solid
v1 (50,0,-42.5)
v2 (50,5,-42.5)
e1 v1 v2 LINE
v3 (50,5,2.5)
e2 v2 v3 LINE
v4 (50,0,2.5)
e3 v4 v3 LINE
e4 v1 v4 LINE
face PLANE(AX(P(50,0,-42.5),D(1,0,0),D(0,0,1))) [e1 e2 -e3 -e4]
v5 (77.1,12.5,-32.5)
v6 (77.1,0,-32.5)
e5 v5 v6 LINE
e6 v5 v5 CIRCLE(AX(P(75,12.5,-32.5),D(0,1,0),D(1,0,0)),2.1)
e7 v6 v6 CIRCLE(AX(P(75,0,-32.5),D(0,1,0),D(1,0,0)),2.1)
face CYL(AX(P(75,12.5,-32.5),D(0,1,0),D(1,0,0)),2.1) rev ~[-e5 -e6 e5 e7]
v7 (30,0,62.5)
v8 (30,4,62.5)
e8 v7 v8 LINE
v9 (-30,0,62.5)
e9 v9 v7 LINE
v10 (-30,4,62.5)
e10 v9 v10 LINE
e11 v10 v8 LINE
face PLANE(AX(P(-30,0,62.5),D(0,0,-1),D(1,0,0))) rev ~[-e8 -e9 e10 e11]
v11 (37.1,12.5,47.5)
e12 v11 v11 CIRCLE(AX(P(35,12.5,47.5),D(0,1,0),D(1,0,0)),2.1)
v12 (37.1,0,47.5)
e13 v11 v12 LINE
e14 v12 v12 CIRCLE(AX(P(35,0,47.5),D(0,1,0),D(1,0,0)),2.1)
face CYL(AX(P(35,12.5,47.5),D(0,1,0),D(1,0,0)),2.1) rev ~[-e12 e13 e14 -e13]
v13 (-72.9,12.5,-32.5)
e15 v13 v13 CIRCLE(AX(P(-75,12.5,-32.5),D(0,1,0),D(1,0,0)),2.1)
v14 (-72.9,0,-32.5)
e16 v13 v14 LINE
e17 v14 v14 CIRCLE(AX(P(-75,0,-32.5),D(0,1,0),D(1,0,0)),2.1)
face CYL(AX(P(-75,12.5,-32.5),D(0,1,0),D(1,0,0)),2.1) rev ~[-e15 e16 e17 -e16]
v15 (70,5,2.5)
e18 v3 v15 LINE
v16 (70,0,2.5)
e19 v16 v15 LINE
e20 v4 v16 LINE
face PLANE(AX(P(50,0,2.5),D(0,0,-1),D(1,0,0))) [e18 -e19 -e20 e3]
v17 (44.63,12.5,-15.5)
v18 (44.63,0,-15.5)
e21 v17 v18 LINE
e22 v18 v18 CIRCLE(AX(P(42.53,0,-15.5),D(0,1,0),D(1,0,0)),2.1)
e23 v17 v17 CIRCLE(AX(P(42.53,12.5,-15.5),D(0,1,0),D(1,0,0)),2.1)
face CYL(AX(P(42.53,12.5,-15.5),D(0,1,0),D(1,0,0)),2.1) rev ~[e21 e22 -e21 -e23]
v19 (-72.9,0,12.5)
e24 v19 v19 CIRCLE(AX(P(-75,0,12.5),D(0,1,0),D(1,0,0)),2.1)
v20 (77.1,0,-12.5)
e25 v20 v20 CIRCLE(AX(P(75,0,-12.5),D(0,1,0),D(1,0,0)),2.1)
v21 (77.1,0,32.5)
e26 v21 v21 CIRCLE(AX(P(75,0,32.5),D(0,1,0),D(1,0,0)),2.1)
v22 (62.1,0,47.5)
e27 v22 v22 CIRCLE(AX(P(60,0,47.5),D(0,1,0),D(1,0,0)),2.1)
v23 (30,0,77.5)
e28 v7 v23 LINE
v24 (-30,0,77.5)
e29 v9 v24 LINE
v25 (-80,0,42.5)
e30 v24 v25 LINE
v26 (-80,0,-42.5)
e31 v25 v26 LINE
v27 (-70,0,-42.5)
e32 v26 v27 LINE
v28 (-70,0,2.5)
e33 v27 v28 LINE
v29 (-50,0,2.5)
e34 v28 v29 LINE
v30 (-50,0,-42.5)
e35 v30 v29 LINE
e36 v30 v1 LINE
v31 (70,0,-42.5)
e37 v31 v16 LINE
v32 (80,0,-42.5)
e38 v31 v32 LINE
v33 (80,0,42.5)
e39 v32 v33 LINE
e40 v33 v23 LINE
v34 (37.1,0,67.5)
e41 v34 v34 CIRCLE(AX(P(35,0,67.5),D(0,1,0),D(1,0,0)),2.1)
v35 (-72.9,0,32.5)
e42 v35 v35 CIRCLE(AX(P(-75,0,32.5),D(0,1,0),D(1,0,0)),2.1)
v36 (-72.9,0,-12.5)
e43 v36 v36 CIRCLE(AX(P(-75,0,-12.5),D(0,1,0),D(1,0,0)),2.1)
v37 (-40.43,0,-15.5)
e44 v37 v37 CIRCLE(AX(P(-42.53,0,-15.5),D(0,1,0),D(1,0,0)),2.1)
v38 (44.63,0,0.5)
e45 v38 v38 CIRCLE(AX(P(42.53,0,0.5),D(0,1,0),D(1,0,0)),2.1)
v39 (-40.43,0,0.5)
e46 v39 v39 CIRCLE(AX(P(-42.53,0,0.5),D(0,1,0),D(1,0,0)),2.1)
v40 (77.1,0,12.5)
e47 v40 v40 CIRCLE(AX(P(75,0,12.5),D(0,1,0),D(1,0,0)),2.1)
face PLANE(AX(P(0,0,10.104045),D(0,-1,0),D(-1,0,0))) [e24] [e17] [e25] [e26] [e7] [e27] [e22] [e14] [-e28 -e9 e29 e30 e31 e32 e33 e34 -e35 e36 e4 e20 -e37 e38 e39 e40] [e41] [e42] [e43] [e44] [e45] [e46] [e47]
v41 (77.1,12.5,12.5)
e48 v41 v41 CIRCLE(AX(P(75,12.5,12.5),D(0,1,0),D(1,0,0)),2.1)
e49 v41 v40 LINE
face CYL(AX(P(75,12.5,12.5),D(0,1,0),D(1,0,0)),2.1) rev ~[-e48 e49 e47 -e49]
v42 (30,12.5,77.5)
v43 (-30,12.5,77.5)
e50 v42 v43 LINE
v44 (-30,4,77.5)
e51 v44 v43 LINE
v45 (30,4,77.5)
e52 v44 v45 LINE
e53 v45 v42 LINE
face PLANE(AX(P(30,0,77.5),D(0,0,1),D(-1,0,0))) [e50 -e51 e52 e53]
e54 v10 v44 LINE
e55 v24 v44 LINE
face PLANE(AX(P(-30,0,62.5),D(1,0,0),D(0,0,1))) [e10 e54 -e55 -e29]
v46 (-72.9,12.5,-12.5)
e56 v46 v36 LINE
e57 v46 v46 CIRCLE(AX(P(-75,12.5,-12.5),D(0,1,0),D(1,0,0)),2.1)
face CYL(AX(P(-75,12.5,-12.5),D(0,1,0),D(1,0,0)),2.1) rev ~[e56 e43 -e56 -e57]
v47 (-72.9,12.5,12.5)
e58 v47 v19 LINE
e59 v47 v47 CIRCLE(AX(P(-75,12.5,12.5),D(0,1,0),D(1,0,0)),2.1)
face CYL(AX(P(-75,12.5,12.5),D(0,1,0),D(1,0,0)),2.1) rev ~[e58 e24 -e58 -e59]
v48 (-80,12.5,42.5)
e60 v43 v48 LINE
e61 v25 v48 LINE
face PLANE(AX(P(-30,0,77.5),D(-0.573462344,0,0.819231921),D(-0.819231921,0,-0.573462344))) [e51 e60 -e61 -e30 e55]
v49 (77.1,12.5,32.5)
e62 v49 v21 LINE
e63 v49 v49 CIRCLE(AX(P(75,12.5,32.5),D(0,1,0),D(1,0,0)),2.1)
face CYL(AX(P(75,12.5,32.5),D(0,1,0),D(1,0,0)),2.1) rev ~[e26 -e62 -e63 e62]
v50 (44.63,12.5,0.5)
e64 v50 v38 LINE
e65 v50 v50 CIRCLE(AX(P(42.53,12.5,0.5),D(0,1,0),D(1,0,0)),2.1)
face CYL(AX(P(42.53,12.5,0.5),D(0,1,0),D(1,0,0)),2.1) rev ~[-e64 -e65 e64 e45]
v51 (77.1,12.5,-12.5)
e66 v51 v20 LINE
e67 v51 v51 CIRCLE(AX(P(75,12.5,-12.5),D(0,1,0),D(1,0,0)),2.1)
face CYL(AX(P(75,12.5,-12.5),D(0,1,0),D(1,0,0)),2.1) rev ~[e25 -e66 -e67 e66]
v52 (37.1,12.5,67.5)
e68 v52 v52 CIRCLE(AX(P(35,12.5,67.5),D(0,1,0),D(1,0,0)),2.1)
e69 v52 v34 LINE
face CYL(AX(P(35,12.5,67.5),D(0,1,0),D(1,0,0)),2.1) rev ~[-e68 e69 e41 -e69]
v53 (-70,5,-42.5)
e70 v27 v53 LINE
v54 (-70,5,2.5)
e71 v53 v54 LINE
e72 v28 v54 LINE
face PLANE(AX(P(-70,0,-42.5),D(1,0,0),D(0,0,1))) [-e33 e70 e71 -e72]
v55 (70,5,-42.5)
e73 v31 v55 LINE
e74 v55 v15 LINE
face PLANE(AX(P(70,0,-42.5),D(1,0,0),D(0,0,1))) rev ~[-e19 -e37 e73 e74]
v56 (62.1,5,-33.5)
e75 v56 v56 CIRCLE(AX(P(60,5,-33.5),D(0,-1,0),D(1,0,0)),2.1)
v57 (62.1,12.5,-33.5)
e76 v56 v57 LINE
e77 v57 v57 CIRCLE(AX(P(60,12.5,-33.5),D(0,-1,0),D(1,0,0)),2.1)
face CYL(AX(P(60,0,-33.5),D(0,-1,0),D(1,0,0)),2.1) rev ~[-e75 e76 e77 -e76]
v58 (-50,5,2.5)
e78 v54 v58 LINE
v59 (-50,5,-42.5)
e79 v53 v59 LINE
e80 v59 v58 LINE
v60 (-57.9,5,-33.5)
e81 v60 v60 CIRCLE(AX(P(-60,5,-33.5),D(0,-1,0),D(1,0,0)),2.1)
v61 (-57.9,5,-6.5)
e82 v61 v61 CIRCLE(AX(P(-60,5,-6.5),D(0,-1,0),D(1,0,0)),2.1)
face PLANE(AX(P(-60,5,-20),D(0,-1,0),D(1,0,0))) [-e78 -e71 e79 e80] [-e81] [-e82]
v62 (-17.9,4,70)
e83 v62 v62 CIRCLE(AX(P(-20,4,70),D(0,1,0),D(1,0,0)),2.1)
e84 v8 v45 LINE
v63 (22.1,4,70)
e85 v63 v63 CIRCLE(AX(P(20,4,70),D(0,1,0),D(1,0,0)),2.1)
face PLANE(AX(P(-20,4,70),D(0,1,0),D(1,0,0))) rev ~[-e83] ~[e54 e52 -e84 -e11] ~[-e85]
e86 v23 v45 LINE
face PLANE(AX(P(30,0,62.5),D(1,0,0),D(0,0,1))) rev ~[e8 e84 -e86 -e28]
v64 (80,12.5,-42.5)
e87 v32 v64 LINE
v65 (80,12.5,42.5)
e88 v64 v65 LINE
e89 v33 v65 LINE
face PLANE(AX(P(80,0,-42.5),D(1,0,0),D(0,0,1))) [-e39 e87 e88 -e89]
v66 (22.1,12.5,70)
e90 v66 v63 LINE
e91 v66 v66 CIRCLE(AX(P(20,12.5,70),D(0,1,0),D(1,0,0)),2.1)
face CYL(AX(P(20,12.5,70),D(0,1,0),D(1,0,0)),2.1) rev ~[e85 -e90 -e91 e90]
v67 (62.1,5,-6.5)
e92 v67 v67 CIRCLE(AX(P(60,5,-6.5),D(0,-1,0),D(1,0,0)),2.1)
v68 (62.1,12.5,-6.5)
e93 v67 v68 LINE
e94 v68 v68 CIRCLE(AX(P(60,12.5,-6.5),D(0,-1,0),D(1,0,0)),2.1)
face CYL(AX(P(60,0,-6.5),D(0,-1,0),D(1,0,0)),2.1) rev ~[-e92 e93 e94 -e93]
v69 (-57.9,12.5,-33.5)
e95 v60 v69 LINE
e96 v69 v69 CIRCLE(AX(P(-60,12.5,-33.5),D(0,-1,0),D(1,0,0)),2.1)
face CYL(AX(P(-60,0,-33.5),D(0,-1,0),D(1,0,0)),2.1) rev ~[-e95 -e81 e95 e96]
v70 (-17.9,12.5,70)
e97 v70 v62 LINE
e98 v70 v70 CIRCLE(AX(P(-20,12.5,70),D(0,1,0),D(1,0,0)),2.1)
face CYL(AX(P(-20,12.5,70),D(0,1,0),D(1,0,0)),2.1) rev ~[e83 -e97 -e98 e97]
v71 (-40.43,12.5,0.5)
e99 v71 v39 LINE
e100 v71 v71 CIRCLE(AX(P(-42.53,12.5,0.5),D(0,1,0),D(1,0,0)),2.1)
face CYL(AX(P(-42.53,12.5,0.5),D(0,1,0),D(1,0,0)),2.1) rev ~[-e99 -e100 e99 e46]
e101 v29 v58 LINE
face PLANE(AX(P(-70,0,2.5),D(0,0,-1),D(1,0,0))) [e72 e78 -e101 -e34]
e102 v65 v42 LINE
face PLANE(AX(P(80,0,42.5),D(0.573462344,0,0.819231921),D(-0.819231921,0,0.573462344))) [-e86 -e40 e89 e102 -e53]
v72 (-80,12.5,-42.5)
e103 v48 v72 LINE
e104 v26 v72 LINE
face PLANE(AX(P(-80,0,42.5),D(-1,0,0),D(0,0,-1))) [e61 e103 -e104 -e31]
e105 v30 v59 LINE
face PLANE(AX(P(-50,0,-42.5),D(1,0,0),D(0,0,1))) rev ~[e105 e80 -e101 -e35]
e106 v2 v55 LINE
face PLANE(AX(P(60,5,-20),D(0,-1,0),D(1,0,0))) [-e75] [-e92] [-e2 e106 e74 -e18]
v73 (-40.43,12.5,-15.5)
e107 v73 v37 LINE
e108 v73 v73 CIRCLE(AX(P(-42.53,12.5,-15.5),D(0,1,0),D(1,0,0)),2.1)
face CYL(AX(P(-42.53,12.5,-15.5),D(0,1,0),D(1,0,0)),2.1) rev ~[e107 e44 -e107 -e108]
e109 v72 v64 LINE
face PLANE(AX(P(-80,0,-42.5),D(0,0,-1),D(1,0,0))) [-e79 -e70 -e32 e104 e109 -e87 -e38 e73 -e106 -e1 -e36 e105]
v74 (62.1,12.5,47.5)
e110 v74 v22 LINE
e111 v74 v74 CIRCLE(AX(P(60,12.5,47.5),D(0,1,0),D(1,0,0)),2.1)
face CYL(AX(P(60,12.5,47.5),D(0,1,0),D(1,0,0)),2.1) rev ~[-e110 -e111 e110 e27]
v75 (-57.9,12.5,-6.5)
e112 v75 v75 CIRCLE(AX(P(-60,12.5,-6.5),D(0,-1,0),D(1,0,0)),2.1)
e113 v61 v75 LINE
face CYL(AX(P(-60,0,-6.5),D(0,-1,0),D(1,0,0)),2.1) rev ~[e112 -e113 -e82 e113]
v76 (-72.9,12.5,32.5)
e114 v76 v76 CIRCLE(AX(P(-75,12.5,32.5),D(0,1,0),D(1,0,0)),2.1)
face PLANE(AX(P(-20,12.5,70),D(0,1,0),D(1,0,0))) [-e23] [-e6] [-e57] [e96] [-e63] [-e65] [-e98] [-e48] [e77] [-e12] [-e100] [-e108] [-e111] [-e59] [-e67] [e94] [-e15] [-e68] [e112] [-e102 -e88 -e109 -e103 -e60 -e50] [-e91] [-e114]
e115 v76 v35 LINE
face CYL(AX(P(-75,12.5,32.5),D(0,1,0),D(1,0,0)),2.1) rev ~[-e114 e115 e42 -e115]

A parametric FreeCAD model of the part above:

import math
import FreeCAD as App
import Part
import Sketcher
from FreeCAD import Vector
Q = App.Units.Quantity


def edges_at(feature, points):
    """Names of the edges that pass closest to the given points."""
    edges = feature.Shape.Edges
    near = lambda p: min(range(len(edges)), key=lambda i: edges[i].distToShape(Part.Vertex(*p))[0])
    return sorted({f"Edge{near(p) + 1}" for p in points})

doc = App.newDocument("Part")
body = doc.addObject("PartDesign::Body", "Body")

sketch1 = body.newObject("Sketcher::SketchObject", "Sketch")
sketch1.AttachmentSupport = (doc.getObject("XZ_Plane"), [""])
sketch1.MapMode = "FlatFace"
sketch1.addGeometry([
    Part.LineSegment(Vector(-80, -42, 0), Vector(-80, 42, 0)),
    Part.LineSegment(Vector(-80, 42, 0), Vector(-30, 78, 0)),
    Part.LineSegment(Vector(-30, 78, 0), Vector(30, 78, 0)),
    Part.LineSegment(Vector(30, 78, 0), Vector(80, 42, 0)),
    Part.LineSegment(Vector(80, 42, 0), Vector(80, -42, 0)),
    Part.LineSegment(Vector(80, -42, 0), Vector(-80, -42, 0)),
], False)
sketch1.addConstraint([
    Sketcher.Constraint("Coincident", 0, 2, 1, 1),
    Sketcher.Constraint("Coincident", 1, 2, 2, 1),
    Sketcher.Constraint("Coincident", 2, 2, 3, 1),
    Sketcher.Constraint("Coincident", 3, 2, 4, 1),
    Sketcher.Constraint("Coincident", 4, 2, 5, 1),
    Sketcher.Constraint("Coincident", 5, 2, 0, 1),
    Sketcher.Constraint("Vertical", 0),
    Sketcher.Constraint("Horizontal", 2),
    Sketcher.Constraint("Vertical", 4),
    Sketcher.Constraint("Horizontal", 5),
    Sketcher.Constraint("Symmetric", 0, 2, 4, 2, -1, 1),
    Sketcher.Constraint("Horizontal", 0, 2, 3, 2),
    Sketcher.Constraint("Equal", 1, 3),
    Sketcher.Constraint("DistanceX", 2, 1, 2, 2, Q("60 mm")),
    Sketcher.Constraint("DistanceX", 5, 2, 5, 1, Q("160 mm")),
    Sketcher.Constraint("DistanceY", 0, 1, 0, 2, Q("85 mm")),
    Sketcher.Constraint("DistanceY", 0, 2, 1, 2, Q("35 mm")),
])
pad1 = body.newObject("PartDesign::Pad", "Pad")
pad1.Profile = sketch1
pad1.Length = 12.5
pad1.Reversed = True

sketch2 = body.newObject("Sketcher::SketchObject", "Sketch001")
sketch2.AttachmentSupport = (doc.getObject("XZ_Plane"), [""])
sketch2.MapMode = "FlatFace"
sketch2.AttachmentOffset = App.Placement(Vector(0, 0, -12.5), App.Rotation())
sketch2.addGeometry([
    Part.LineSegment(Vector(10.2, 47.5, 0), Vector(-10.2, 47.5, 0)),
    Part.LineSegment(Vector(-10.2, 47.5, 0), Vector(-10.2, 7, 0)),
    Part.LineSegment(Vector(-10.2, 7, 0), Vector(-3, 7, 0)),
    Part.LineSegment(Vector(-3, 7, 0), Vector(-3, 3.6, 0)),
    Part.ArcOfCircle(Part.Circle(Vector(-5, 3, 0), Vector(0, 0, 1), 2.1), math.radians(18), math.radians(342)),
    Part.LineSegment(Vector(-3, 2.4, 0), Vector(-3, -2.8, 0)),
    Part.LineSegment(Vector(-3, -2.8, 0), Vector(-15, -2.8, 0)),
    Part.LineSegment(Vector(-15, -2.8, 0), Vector(-15, 57.2, 0)),
    Part.LineSegment(Vector(-15, 57.2, 0), Vector(15, 57.2, 0)),
    Part.LineSegment(Vector(15, 57.2, 0), Vector(15, -2.8, 0)),
    Part.LineSegment(Vector(15, -2.8, 0), Vector(3, -2.8, 0)),
    Part.LineSegment(Vector(3, -2.8, 0), Vector(3, 2.4, 0)),
    Part.ArcOfCircle(Part.Circle(Vector(5, 3, 0), Vector(0, 0, 1), 2.1), math.radians(-162), math.radians(0)),
    Part.ArcOfCircle(Part.Circle(Vector(5, 3, 0), Vector(0, 0, 1), 2.1), math.radians(0), math.radians(162)),
    Part.LineSegment(Vector(3, 3.6, 0), Vector(3, 7, 0)),
    Part.LineSegment(Vector(3, 7, 0), Vector(10.2, 7, 0)),
    Part.LineSegment(Vector(10.2, 7, 0), Vector(10.2, 47.5, 0)),
    Part.Circle(Vector(-5, 51.5, 0), Vector(0, 0, 1), 2.1),
    Part.Circle(Vector(5, 51.5, 0), Vector(0, 0, 1), 2.1),
], False)
sketch2.addConstraint([
    Sketcher.Constraint("Coincident", 0, 2, 1, 1),
    Sketcher.Constraint("Coincident", 1, 2, 2, 1),
    Sketcher.Constraint("Coincident", 2, 2, 3, 1),
    Sketcher.Constraint("Coincident", 3, 2, 4, 1),
    Sketcher.Constraint("Coincident", 4, 2, 5, 1),
    Sketcher.Constraint("Coincident", 5, 2, 6, 1),
    Sketcher.Constraint("Coincident", 6, 2, 7, 1),
    Sketcher.Constraint("Coincident", 7, 2, 8, 1),
    Sketcher.Constraint("Coincident", 8, 2, 9, 1),
    Sketcher.Constraint("Coincident", 9, 2, 10, 1),
    Sketcher.Constraint("Coincident", 10, 2, 11, 1),
    Sketcher.Constraint("Coincident", 11, 2, 12, 1),
    Sketcher.Constraint("Tangent", 12, 2, 13, 1),
    Sketcher.Constraint("Coincident", 13, 2, 14, 1),
    Sketcher.Constraint("Coincident", 14, 2, 15, 1),
    Sketcher.Constraint("Coincident", 15, 2, 16, 1),
    Sketcher.Constraint("Coincident", 16, 2, 0, 1),
    Sketcher.Constraint("Horizontal", 0),
    Sketcher.Constraint("Vertical", 1),
    Sketcher.Constraint("Horizontal", 2),
    Sketcher.Constraint("Vertical", 3),
    Sketcher.Constraint("Vertical", 5),
    Sketcher.Constraint("Horizontal", 6),
    Sketcher.Constraint("Vertical", 7),
    Sketcher.Constraint("Horizontal", 8),
    Sketcher.Constraint("Vertical", 9),
    Sketcher.Constraint("Horizontal", 10),
    Sketcher.Constraint("Vertical", 11),
    Sketcher.Constraint("Vertical", 14),
    Sketcher.Constraint("Horizontal", 15),
    Sketcher.Constraint("Vertical", 16),
    Sketcher.Constraint("Equal", 4, 12),
    Sketcher.Constraint("Equal", 12, 13),
    Sketcher.Constraint("Equal", 13, 17),
    Sketcher.Constraint("Equal", 17, 18),
    Sketcher.Constraint("Symmetric", 4, 3, 12, 3, -2),
    Sketcher.Constraint("Symmetric", 17, 3, 18, 3, -2),
    Sketcher.Constraint("Symmetric", 6, 2, 9, 2, -2),
    Sketcher.Constraint("Symmetric", 2, 2, 14, 2, -2),
    Sketcher.Constraint("Horizontal", 4, 2, 11, 2),
    Sketcher.Constraint("Horizontal", 13, 3, 12, 2),
    Sketcher.Constraint("Vertical", 4, 3, 17, 3),
    Sketcher.Constraint("Vertical", 3, 2, 4, 2),
    Sketcher.Constraint("Equal", 2, 15),
    Sketcher.Constraint("Diameter", 17, Q("4.2 mm")),
    Sketcher.Constraint("DistanceX", 6, 2, 6, 1, Q("12 mm")),
    Sketcher.Constraint("DistanceX", 8, 1, 8, 2, Q("30 mm")),
    Sketcher.Constraint("DistanceY", 7, 1, 7, 2, Q("60 mm")),
    Sketcher.Constraint("DistanceX", 0, 2, 0, 1, Q("20.5 mm")),
    Sketcher.Constraint("DistanceY", 1, 2, 1, 1, Q("40.5 mm")),
    Sketcher.Constraint("DistanceX", 4, 3, -1, 1, Q("5 mm")),
    Sketcher.Constraint("DistanceY", -1, 1, 4, 3, Q("3 mm")),
    Sketcher.Constraint("DistanceY", -1, 1, 1, 2, Q("7 mm")),
    Sketcher.Constraint("DistanceY", 0, 2, 17, 3, Q("4 mm")),
    Sketcher.Constraint("DistanceY", 5, 2, -1, 1, Q("2.75 mm")),
])
pad2 = body.newObject("PartDesign::Pad", "Pad001")
pad2.Profile = sketch2
pad2.Length = 29
pad2.Reversed = True

sketch3 = body.newObject("Sketcher::SketchObject", "Sketch002")
sketch3.AttachmentSupport = (doc.getObject("XY_Plane"), [""])
sketch3.MapMode = "FlatFace"
sketch3.AttachmentOffset = App.Placement(Vector(0, 0, 57.25), App.Rotation())
sketch3.addGeometry([
    Part.LineSegment(Vector(0.5, 37.5, 0), Vector(0.5, 34, 0)),
    Part.LineSegment(Vector(0.5, 34, 0), Vector(9.5, 34, 0)),
    Part.LineSegment(Vector(9.5, 34, 0), Vector(9.5, 37.5, 0)),
    Part.LineSegment(Vector(9.5, 37.5, 0), Vector(0.5, 37.5, 0)),
    Part.LineSegment(Vector(-9.5, 37.5, 0), Vector(-9.5, 34, 0)),
    Part.LineSegment(Vector(-9.5, 34, 0), Vector(-0.5, 34, 0)),
    Part.LineSegment(Vector(-0.5, 34, 0), Vector(-0.5, 37.5, 0)),
    Part.LineSegment(Vector(-0.5, 37.5, 0), Vector(-9.5, 37.5, 0)),
], False)
sketch3.addConstraint([
    Sketcher.Constraint("Coincident", 0, 2, 1, 1),
    Sketcher.Constraint("Coincident", 1, 2, 2, 1),
    Sketcher.Constraint("Coincident", 2, 2, 3, 1),
    Sketcher.Constraint("Coincident", 3, 2, 0, 1),
    Sketcher.Constraint("Coincident", 4, 2, 5, 1),
    Sketcher.Constraint("Coincident", 5, 2, 6, 1),
    Sketcher.Constraint("Coincident", 6, 2, 7, 1),
    Sketcher.Constraint("Coincident", 7, 2, 4, 1),
    Sketcher.Constraint("Vertical", 0),
    Sketcher.Constraint("Horizontal", 1),
    Sketcher.Constraint("Vertical", 2),
    Sketcher.Constraint("Horizontal", 3),
    Sketcher.Constraint("Vertical", 4),
    Sketcher.Constraint("Horizontal", 5),
    Sketcher.Constraint("Vertical", 6),
    Sketcher.Constraint("Horizontal", 7),
    Sketcher.Constraint("Symmetric", 1, 2, 4, 2, -2),
    Sketcher.Constraint("Symmetric", 3, 2, 6, 2, -2),
    Sketcher.Constraint("DistanceX", 1, 1, 1, 2, Q("9 mm")),
    Sketcher.Constraint("DistanceY", 0, 2, 0, 1, Q("3.5 mm")),
    Sketcher.Constraint("DistanceY", -1, 1, 0, 2, Q("34 mm")),
    Sketcher.Constraint("DistanceX", 4, 2, 0, 2, Q("10 mm")),
])
pocket1 = body.newObject("PartDesign::Pocket", "Pocket")
pocket1.Profile = sketch3
pocket1.Length = 73
doc.recompute()

chamfer = body.newObject("PartDesign::Chamfer", "Chamfer")
chamfer.Base = (pocket1, edges_at(pocket1, [
    (-15, 27, -2.75),
    (-15, 27, 57.25),
    (15, 27, 57.25),
    (15, 27, -2.75),
]))
chamfer.Size = 3

sketch4 = body.newObject("Sketcher::SketchObject", "Sketch003")
sketch4.AttachmentSupport = (doc.getObject("XZ_Plane"), [""])
sketch4.MapMode = "FlatFace"
sketch4.addGeometry([
    Part.LineSegment(Vector(-30, 77.5, 0), Vector(-30, 62.5, 0)),
    Part.LineSegment(Vector(-30, 62.5, 0), Vector(30, 62.5, 0)),
    Part.LineSegment(Vector(30, 62.5, 0), Vector(30, 77.5, 0)),
    Part.LineSegment(Vector(30, 77.5, 0), Vector(-30, 77.5, 0)),
    Part.Circle(Vector(-20, 70, 0), Vector(0, 0, 1), 2.9),
    Part.Circle(Vector(20, 70, 0), Vector(0, 0, 1), 2.9),
], False)
sketch4.addConstraint([
    Sketcher.Constraint("Coincident", 0, 2, 1, 1),
    Sketcher.Constraint("Coincident", 1, 2, 2, 1),
    Sketcher.Constraint("Coincident", 2, 2, 3, 1),
    Sketcher.Constraint("Coincident", 3, 2, 0, 1),
    Sketcher.Constraint("Vertical", 0),
    Sketcher.Constraint("Horizontal", 1),
    Sketcher.Constraint("Vertical", 2),
    Sketcher.Constraint("Horizontal", 3),
    Sketcher.Constraint("Equal", 4, 5),
    Sketcher.Constraint("Symmetric", 4, 3, 5, 3, -2),
    Sketcher.Constraint("DistanceX", 1, 1, 1, 2, Q("60 mm")),
    Sketcher.Constraint("DistanceY", 0, 2, 0, 1, Q("15 mm")),
    Sketcher.Constraint("DistanceX", 4, 3, -1, 1, Q("20 mm")),
    Sketcher.Constraint("DistanceY", -1, 1, 4, 3, Q("70 mm")),
    Sketcher.Constraint("DistanceX", 0, 2, -1, 1, Q("30 mm")),
    Sketcher.Constraint("DistanceY", -1, 1, 0, 2, Q("62.5 mm")),
    Sketcher.Constraint("Diameter", 4, Q("5.795104 mm")),
])
pocket2 = body.newObject("PartDesign::Pocket", "Pocket001")
pocket2.Profile = sketch4
pocket2.Length = 4

sketch5 = body.newObject("Sketcher::SketchObject", "Sketch004")
sketch5.AttachmentSupport = (doc.getObject("XZ_Plane"), [""])
sketch5.MapMode = "FlatFace"
sketch5.addGeometry([
    Part.Circle(Vector(-20, 70, 0), Vector(0, 0, 1), 2.9),
    Part.Circle(Vector(20, 70, 0), Vector(0, 0, 1), 2.9),
], False)
sketch5.addConstraint([
    Sketcher.Constraint("Equal", 0, 1),
    Sketcher.Constraint("Symmetric", 0, 3, 1, 3, -2),
    Sketcher.Constraint("DistanceX", 0, 3, -1, 1, Q("20 mm")),
    Sketcher.Constraint("DistanceY", -1, 1, 0, 3, Q("70 mm")),
    Sketcher.Constraint("Diameter", 0, Q("5.795104 mm")),
])
pocket3 = body.newObject("PartDesign::Pocket", "Pocket002")
pocket3.Profile = sketch5
pocket3.Length = 26

sketch6 = body.newObject("Sketcher::SketchObject", "Sketch005")
sketch6.AttachmentSupport = (doc.getObject("XZ_Plane"), [""])
sketch6.MapMode = "FlatFace"
sketch6.AttachmentOffset = App.Placement(Vector(0, 0, -12.5), App.Rotation())
sketch6.addGeometry([
    Part.Circle(Vector(-75, -32.5, 0), Vector(0, 0, 1), 2.1),
    Part.Circle(Vector(-75, -12.5, 0), Vector(0, 0, 1), 2.1),
    Part.Circle(Vector(-75, 12.5, 0), Vector(0, 0, 1), 2.1),
    Part.Circle(Vector(-75, 32.5, 0), Vector(0, 0, 1), 2.1),
    Part.Circle(Vector(75, 32.5, 0), Vector(0, 0, 1), 2.1),
    Part.Circle(Vector(75, 12.5, 0), Vector(0, 0, 1), 2.1),
    Part.Circle(Vector(75, -12.5, 0), Vector(0, 0, 1), 2.1),
    Part.Circle(Vector(75, -32.5, 0), Vector(0, 0, 1), 2.1),
], False)
sketch6.addConstraint([
    Sketcher.Constraint("Equal", 0, 1),
    Sketcher.Constraint("Equal", 1, 2),
    Sketcher.Constraint("Equal", 2, 3),
    Sketcher.Constraint("Equal", 3, 4),
    Sketcher.Constraint("Equal", 4, 5),
    Sketcher.Constraint("Equal", 5, 6),
    Sketcher.Constraint("Equal", 6, 7),
    Sketcher.Constraint("Symmetric", 0, 3, 4, 3, -1, 1),
    Sketcher.Constraint("Symmetric", 1, 3, 5, 3, -1, 1),
    Sketcher.Constraint("Symmetric", 2, 3, 6, 3, -1, 1),
    Sketcher.Constraint("Symmetric", 3, 3, 7, 3, -1, 1),
    Sketcher.Constraint("Symmetric", 3, 3, 4, 3, -2),
    Sketcher.Constraint("Symmetric", 2, 3, 5, 3, -2),
    Sketcher.Constraint("Vertical", 0, 3, 1, 3),
    Sketcher.Constraint("Diameter", 0, Q("4.2 mm")),
    Sketcher.Constraint("DistanceX", 0, 3, -1, 1, Q("75 mm")),
    Sketcher.Constraint("DistanceY", 0, 3, 1, 3, Q("20 mm")),
    Sketcher.Constraint("DistanceY", 1, 3, 2, 3, Q("25 mm")),
])
pocket4 = body.newObject("PartDesign::Pocket", "Pocket003")
pocket4.Profile = sketch6
pocket4.Length = 26
pocket4.Reversed = True

sketch7 = body.newObject("Sketcher::SketchObject", "Sketch006")
sketch7.AttachmentSupport = (doc.getObject("XZ_Plane"), [""])
sketch7.MapMode = "FlatFace"
sketch7.addGeometry([
    Part.Circle(Vector(-60, -6.5, 0), Vector(0, 0, 1), 2.1),
    Part.Circle(Vector(-60, -33.5, 0), Vector(0, 0, 1), 2.1),
    Part.Circle(Vector(60, -6.5, 0), Vector(0, 0, 1), 2.1),
    Part.Circle(Vector(60, -33.5, 0), Vector(0, 0, 1), 2.1),
], False)
sketch7.addConstraint([
    Sketcher.Constraint("Equal", 0, 1),
    Sketcher.Constraint("Equal", 1, 2),
    Sketcher.Constraint("Equal", 2, 3),
    Sketcher.Constraint("Symmetric", 0, 3, 2, 3, -2),
    Sketcher.Constraint("Symmetric", 1, 3, 3, 3, -2),
    Sketcher.Constraint("Vertical", 0, 3, 1, 3),
    Sketcher.Constraint("Diameter", 0, Q("4.2 mm")),
    Sketcher.Constraint("DistanceX", 0, 3, -1, 1, Q("60 mm")),
    Sketcher.Constraint("DistanceY", 1, 3, 0, 3, Q("27 mm")),
    Sketcher.Constraint("DistanceY", 0, 3, -1, 1, Q("6.5 mm")),
])
pocket5 = body.newObject("PartDesign::Pocket", "Pocket004")
pocket5.Profile = sketch7
pocket5.Length = 26

sketch8 = body.newObject("Sketcher::SketchObject", "Sketch007")
sketch8.AttachmentSupport = (doc.getObject("XZ_Plane"), [""])
sketch8.MapMode = "FlatFace"
sketch8.addGeometry([
    Part.LineSegment(Vector(-70, 2, 0), Vector(-70, -42, 0)),
    Part.LineSegment(Vector(-70, -42, 0), Vector(-50, -42, 0)),
    Part.LineSegment(Vector(-50, -42, 0), Vector(-50, 2, 0)),
    Part.LineSegment(Vector(-50, 2, 0), Vector(-70, 2, 0)),
    Part.LineSegment(Vector(50, 2, 0), Vector(50, -42, 0)),
    Part.LineSegment(Vector(50, -42, 0), Vector(70, -42, 0)),
    Part.LineSegment(Vector(70, -42, 0), Vector(70, 2, 0)),
    Part.LineSegment(Vector(70, 2, 0), Vector(50, 2, 0)),
], False)
sketch8.addConstraint([
    Sketcher.Constraint("Coincident", 0, 2, 1, 1),
    Sketcher.Constraint("Coincident", 1, 2, 2, 1),
    Sketcher.Constraint("Coincident", 2, 2, 3, 1),
    Sketcher.Constraint("Coincident", 3, 2, 0, 1),
    Sketcher.Constraint("Coincident", 4, 2, 5, 1),
    Sketcher.Constraint("Coincident", 5, 2, 6, 1),
    Sketcher.Constraint("Coincident", 6, 2, 7, 1),
    Sketcher.Constraint("Coincident", 7, 2, 4, 1),
    Sketcher.Constraint("Vertical", 0),
    Sketcher.Constraint("Horizontal", 1),
    Sketcher.Constraint("Vertical", 2),
    Sketcher.Constraint("Horizontal", 3),
    Sketcher.Constraint("Vertical", 4),
    Sketcher.Constraint("Horizontal", 5),
    Sketcher.Constraint("Vertical", 6),
    Sketcher.Constraint("Horizontal", 7),
    Sketcher.Constraint("Symmetric", 1, 2, 4, 2, -2),
    Sketcher.Constraint("Symmetric", 3, 2, 6, 2, -2),
    Sketcher.Constraint("DistanceX", 1, 1, 1, 2, Q("20 mm")),
    Sketcher.Constraint("DistanceY", 0, 2, 0, 1, Q("45 mm")),
    Sketcher.Constraint("DistanceX", 0, 2, -1, 1, Q("70 mm")),
    Sketcher.Constraint("DistanceY", 0, 2, -1, 1, Q("42.5 mm")),
])
pocket6 = body.newObject("PartDesign::Pocket", "Pocket005")
pocket6.Profile = sketch8
pocket6.Length = 5

sketch9 = body.newObject("Sketcher::SketchObject", "Sketch008")
sketch9.AttachmentSupport = (doc.getObject("XY_Plane"), [""])
sketch9.MapMode = "FlatFace"
sketch9.AttachmentOffset = App.Placement(Vector(0, 0, 57.25), App.Rotation())
sketch9.addGeometry([
    Part.LineSegment(Vector(-0.8, 37.5, 0), Vector(-0.8, 34, 0)),
    Part.LineSegment(Vector(-0.8, 34, 0), Vector(0.8, 34, 0)),
    Part.LineSegment(Vector(0.8, 34, 0), Vector(0.8, 37.5, 0)),
    Part.LineSegment(Vector(0.8, 37.5, 0), Vector(-0.8, 37.5, 0)),
], False)
sketch9.addConstraint([
    Sketcher.Constraint("Coincident", 0, 2, 1, 1),
    Sketcher.Constraint("Coincident", 1, 2, 2, 1),
    Sketcher.Constraint("Coincident", 2, 2, 3, 1),
    Sketcher.Constraint("Coincident", 3, 2, 0, 1),
    Sketcher.Constraint("Vertical", 0),
    Sketcher.Constraint("Horizontal", 1),
    Sketcher.Constraint("Vertical", 2),
    Sketcher.Constraint("Horizontal", 3),
    Sketcher.Constraint("DistanceX", 1, 1, 1, 2, Q("1.5 mm")),
    Sketcher.Constraint("DistanceY", 0, 2, 0, 1, Q("3.5 mm")),
    Sketcher.Constraint("DistanceY", -1, 1, 0, 2, Q("34 mm")),
    Sketcher.Constraint("DistanceX", 0, 2, -1, 1, Q("0.75 mm")),
])
pad3 = body.newObject("PartDesign::Pad", "Pad002")
pad3.Profile = sketch9
pad3.Length = 9.75
pad3.Reversed = True

sketch10 = body.newObject("Sketcher::SketchObject", "Sketch009")
sketch10.AttachmentSupport = (doc.getObject("XZ_Plane"), [""])
sketch10.MapMode = "FlatFace"
sketch10.AttachmentOffset = App.Placement(Vector(0, 0, -12.5), App.Rotation())
sketch10.addGeometry([
    Part.Circle(Vector(-42.5, -37.2, 0), Vector(0, 0, 1), 2.1),
    Part.Circle(Vector(-42.5, -23.2, 0), Vector(0, 0, 1), 2.1),
], False)
sketch10.addConstraint([
    Sketcher.Constraint("Equal", 0, 1),
    Sketcher.Constraint("Vertical", 0, 3, 1, 3),
    Sketcher.Constraint("Diameter", 0, Q("4.2 mm")),
    Sketcher.Constraint("DistanceY", 0, 3, 1, 3, Q("14 mm")),
    Sketcher.Constraint("DistanceX", 0, 3, -1, 1, Q("42.5 mm")),
    Sketcher.Constraint("DistanceY", 0, 3, -1, 1, Q("37.25 mm")),
])
pocket7 = body.newObject("PartDesign::Pocket", "Pocket006")
pocket7.Profile = sketch10
pocket7.Length = 22
pocket7.Reversed = True

sketch11 = body.newObject("Sketcher::SketchObject", "Sketch010")
sketch11.AttachmentSupport = (doc.getObject("XZ_Plane"), [""])
sketch11.MapMode = "FlatFace"
sketch11.AttachmentOffset = App.Placement(Vector(0, 0, -12.5), App.Rotation())
sketch11.addGeometry([
    Part.Circle(Vector(-42.5, -37.2, 0), Vector(0, 0, 1), 2.1),
    Part.Circle(Vector(-42.5, -23.2, 0), Vector(0, 0, 1), 2.1),
], False)
sketch11.addConstraint([
    Sketcher.Constraint("Equal", 0, 1),
    Sketcher.Constraint("Vertical", 0, 3, 1, 3),
    Sketcher.Constraint("Diameter", 0, Q("4.2 mm")),
    Sketcher.Constraint("DistanceY", 0, 3, 1, 3, Q("14 mm")),
    Sketcher.Constraint("DistanceX", 0, 3, -1, 1, Q("42.5 mm")),
    Sketcher.Constraint("DistanceY", 0, 3, -1, 1, Q("37.25 mm")),
])
pad4 = body.newObject("PartDesign::Pad", "Pad003")
pad4.Profile = sketch11
pad4.Type = "UpToLast"

sketch12 = body.newObject("Sketcher::SketchObject", "Sketch011")
sketch12.AttachmentSupport = (doc.getObject("XZ_Plane"), [""])
sketch12.MapMode = "FlatFace"
sketch12.AttachmentOffset = App.Placement(Vector(0, 0, -41.5), App.Rotation())
sketch12.addGeometry([
    Part.LineSegment(Vector(-18, -8, 0), Vector(-18, 62, 0)),
    Part.LineSegment(Vector(-18, 62, 0), Vector(18, 62, 0)),
    Part.LineSegment(Vector(18, 62, 0), Vector(18, -8, 0)),
    Part.LineSegment(Vector(18, -8, 0), Vector(-18, -8, 0)),
], False)
sketch12.addConstraint([
    Sketcher.Constraint("Coincident", 0, 2, 1, 1),
    Sketcher.Constraint("Coincident", 1, 2, 2, 1),
    Sketcher.Constraint("Coincident", 2, 2, 3, 1),
    Sketcher.Constraint("Coincident", 3, 2, 0, 1),
    Sketcher.Constraint("Vertical", 0),
    Sketcher.Constraint("Horizontal", 1),
    Sketcher.Constraint("Vertical", 2),
    Sketcher.Constraint("Horizontal", 3),
    Sketcher.Constraint("DistanceX", 1, 1, 1, 2, Q("36.0229 mm")),
    Sketcher.Constraint("DistanceY", 0, 1, 0, 2, Q("69.947379 mm")),
    Sketcher.Constraint("DistanceX", 0, 2, -1, 1, Q("18.01145 mm")),
    Sketcher.Constraint("DistanceY", -1, 1, 0, 2, Q("62.00402 mm")),
])
pocket8 = body.newObject("PartDesign::Pocket", "Pocket007")
pocket8.Profile = sketch12
pocket8.Length = 29
pocket8.Reversed = True

sketch13 = body.newObject("Sketcher::SketchObject", "Sketch012")
sketch13.AttachmentSupport = (doc.getObject("XZ_Plane"), [""])
sketch13.MapMode = "FlatFace"
sketch13.AttachmentOffset = App.Placement(Vector(0, 0, -12.5), App.Rotation())
sketch13.addGeometry([
    Part.Circle(Vector(-20, 70, 0), Vector(0, 0, 1), 2.9),
    Part.Circle(Vector(-20, 70, 0), Vector(0, 0, 1), 2.1),
    Part.Circle(Vector(20, 70, 0), Vector(0, 0, 1), 2.9),
    Part.Circle(Vector(20, 70, 0), Vector(0, 0, 1), 2.1),
], False)
sketch13.addConstraint([
    Sketcher.Constraint("Coincident", 1, 3, 0, 3),
    Sketcher.Constraint("Coincident", 3, 3, 2, 3),
    Sketcher.Constraint("Equal", 0, 2),
    Sketcher.Constraint("Equal", 1, 3),
    Sketcher.Constraint("Symmetric", 0, 3, 2, 3, -2),
    Sketcher.Constraint("Diameter", 1, Q("4.2 mm")),
    Sketcher.Constraint("DistanceX", 0, 3, -1, 1, Q("20 mm")),
    Sketcher.Constraint("DistanceY", -1, 1, 0, 3, Q("70 mm")),
    Sketcher.Constraint("Diameter", 0, Q("5.795104 mm")),
])
pad5 = body.newObject("PartDesign::Pad", "Pad004")
pad5.Profile = sketch13
pad5.Length = 8.5

sketch14 = body.newObject("Sketcher::SketchObject", "Sketch013")
sketch14.AttachmentSupport = (doc.getObject("XZ_Plane"), [""])
sketch14.MapMode = "FlatFace"
sketch14.AttachmentOffset = App.Placement(Vector(0, 0, -12.5), App.Rotation())
sketch14.addGeometry([
    Part.Circle(Vector(-42.5, -15.5, 0), Vector(0, 0, 1), 2.1),
    Part.Circle(Vector(-42.5, 0.5, 0), Vector(0, 0, 1), 2.1),
    Part.Circle(Vector(42.5, -15.5, 0), Vector(0, 0, 1), 2.1),
    Part.Circle(Vector(42.5, 0.5, 0), Vector(0, 0, 1), 2.1),
], False)
sketch14.addConstraint([
    Sketcher.Constraint("Equal", 0, 1),
    Sketcher.Constraint("Equal", 1, 2),
    Sketcher.Constraint("Equal", 2, 3),
    Sketcher.Constraint("Symmetric", 0, 3, 2, 3, -2),
    Sketcher.Constraint("Symmetric", 1, 3, 3, 3, -2),
    Sketcher.Constraint("Vertical", 0, 3, 1, 3),
    Sketcher.Constraint("Diameter", 0, Q("4.2 mm")),
    Sketcher.Constraint("DistanceY", 0, 3, 1, 3, Q("16 mm")),
    Sketcher.Constraint("DistanceY", 0, 3, -1, 1, Q("15.5 mm")),
    Sketcher.Constraint("DistanceX", 0, 3, -1, 1, Q("42.53 mm")),
])
pocket9 = body.newObject("PartDesign::Pocket", "Pocket008")
pocket9.Profile = sketch14
pocket9.Length = 38
pocket9.Reversed = True

sketch15 = body.newObject("Sketcher::SketchObject", "Sketch014")
sketch15.AttachmentSupport = (doc.getObject("XZ_Plane"), [""])
sketch15.MapMode = "FlatFace"
sketch15.AttachmentOffset = App.Placement(Vector(0, 0, -12.5), App.Rotation())
sketch15.addGeometry([
    Part.Circle(Vector(35, 47.5, 0), Vector(0, 0, 1), 2.1),
    Part.Circle(Vector(35, 67.5, 0), Vector(0, 0, 1), 2.1),
    Part.Circle(Vector(60, 47.5, 0), Vector(0, 0, 1), 2.1),
], False)
sketch15.addConstraint([
    Sketcher.Constraint("Equal", 0, 1),
    Sketcher.Constraint("Equal", 1, 2),
    Sketcher.Constraint("Horizontal", 0, 3, 2, 3),
    Sketcher.Constraint("Vertical", 0, 3, 1, 3),
    Sketcher.Constraint("Diameter", 0, Q("4.2 mm")),
    Sketcher.Constraint("DistanceX", -1, 1, 0, 3, Q("35 mm")),
    Sketcher.Constraint("DistanceX", -1, 1, 2, 3, Q("60 mm")),
    Sketcher.Constraint("DistanceY", 0, 3, 1, 3, Q("20 mm")),
    Sketcher.Constraint("DistanceY", -1, 1, 0, 3, Q("47.5 mm")),
])
pocket10 = body.newObject("PartDesign::Pocket", "Pocket009")
pocket10.Profile = sketch15
pocket10.Length = 38
pocket10.Reversed = True

doc.recompute()
